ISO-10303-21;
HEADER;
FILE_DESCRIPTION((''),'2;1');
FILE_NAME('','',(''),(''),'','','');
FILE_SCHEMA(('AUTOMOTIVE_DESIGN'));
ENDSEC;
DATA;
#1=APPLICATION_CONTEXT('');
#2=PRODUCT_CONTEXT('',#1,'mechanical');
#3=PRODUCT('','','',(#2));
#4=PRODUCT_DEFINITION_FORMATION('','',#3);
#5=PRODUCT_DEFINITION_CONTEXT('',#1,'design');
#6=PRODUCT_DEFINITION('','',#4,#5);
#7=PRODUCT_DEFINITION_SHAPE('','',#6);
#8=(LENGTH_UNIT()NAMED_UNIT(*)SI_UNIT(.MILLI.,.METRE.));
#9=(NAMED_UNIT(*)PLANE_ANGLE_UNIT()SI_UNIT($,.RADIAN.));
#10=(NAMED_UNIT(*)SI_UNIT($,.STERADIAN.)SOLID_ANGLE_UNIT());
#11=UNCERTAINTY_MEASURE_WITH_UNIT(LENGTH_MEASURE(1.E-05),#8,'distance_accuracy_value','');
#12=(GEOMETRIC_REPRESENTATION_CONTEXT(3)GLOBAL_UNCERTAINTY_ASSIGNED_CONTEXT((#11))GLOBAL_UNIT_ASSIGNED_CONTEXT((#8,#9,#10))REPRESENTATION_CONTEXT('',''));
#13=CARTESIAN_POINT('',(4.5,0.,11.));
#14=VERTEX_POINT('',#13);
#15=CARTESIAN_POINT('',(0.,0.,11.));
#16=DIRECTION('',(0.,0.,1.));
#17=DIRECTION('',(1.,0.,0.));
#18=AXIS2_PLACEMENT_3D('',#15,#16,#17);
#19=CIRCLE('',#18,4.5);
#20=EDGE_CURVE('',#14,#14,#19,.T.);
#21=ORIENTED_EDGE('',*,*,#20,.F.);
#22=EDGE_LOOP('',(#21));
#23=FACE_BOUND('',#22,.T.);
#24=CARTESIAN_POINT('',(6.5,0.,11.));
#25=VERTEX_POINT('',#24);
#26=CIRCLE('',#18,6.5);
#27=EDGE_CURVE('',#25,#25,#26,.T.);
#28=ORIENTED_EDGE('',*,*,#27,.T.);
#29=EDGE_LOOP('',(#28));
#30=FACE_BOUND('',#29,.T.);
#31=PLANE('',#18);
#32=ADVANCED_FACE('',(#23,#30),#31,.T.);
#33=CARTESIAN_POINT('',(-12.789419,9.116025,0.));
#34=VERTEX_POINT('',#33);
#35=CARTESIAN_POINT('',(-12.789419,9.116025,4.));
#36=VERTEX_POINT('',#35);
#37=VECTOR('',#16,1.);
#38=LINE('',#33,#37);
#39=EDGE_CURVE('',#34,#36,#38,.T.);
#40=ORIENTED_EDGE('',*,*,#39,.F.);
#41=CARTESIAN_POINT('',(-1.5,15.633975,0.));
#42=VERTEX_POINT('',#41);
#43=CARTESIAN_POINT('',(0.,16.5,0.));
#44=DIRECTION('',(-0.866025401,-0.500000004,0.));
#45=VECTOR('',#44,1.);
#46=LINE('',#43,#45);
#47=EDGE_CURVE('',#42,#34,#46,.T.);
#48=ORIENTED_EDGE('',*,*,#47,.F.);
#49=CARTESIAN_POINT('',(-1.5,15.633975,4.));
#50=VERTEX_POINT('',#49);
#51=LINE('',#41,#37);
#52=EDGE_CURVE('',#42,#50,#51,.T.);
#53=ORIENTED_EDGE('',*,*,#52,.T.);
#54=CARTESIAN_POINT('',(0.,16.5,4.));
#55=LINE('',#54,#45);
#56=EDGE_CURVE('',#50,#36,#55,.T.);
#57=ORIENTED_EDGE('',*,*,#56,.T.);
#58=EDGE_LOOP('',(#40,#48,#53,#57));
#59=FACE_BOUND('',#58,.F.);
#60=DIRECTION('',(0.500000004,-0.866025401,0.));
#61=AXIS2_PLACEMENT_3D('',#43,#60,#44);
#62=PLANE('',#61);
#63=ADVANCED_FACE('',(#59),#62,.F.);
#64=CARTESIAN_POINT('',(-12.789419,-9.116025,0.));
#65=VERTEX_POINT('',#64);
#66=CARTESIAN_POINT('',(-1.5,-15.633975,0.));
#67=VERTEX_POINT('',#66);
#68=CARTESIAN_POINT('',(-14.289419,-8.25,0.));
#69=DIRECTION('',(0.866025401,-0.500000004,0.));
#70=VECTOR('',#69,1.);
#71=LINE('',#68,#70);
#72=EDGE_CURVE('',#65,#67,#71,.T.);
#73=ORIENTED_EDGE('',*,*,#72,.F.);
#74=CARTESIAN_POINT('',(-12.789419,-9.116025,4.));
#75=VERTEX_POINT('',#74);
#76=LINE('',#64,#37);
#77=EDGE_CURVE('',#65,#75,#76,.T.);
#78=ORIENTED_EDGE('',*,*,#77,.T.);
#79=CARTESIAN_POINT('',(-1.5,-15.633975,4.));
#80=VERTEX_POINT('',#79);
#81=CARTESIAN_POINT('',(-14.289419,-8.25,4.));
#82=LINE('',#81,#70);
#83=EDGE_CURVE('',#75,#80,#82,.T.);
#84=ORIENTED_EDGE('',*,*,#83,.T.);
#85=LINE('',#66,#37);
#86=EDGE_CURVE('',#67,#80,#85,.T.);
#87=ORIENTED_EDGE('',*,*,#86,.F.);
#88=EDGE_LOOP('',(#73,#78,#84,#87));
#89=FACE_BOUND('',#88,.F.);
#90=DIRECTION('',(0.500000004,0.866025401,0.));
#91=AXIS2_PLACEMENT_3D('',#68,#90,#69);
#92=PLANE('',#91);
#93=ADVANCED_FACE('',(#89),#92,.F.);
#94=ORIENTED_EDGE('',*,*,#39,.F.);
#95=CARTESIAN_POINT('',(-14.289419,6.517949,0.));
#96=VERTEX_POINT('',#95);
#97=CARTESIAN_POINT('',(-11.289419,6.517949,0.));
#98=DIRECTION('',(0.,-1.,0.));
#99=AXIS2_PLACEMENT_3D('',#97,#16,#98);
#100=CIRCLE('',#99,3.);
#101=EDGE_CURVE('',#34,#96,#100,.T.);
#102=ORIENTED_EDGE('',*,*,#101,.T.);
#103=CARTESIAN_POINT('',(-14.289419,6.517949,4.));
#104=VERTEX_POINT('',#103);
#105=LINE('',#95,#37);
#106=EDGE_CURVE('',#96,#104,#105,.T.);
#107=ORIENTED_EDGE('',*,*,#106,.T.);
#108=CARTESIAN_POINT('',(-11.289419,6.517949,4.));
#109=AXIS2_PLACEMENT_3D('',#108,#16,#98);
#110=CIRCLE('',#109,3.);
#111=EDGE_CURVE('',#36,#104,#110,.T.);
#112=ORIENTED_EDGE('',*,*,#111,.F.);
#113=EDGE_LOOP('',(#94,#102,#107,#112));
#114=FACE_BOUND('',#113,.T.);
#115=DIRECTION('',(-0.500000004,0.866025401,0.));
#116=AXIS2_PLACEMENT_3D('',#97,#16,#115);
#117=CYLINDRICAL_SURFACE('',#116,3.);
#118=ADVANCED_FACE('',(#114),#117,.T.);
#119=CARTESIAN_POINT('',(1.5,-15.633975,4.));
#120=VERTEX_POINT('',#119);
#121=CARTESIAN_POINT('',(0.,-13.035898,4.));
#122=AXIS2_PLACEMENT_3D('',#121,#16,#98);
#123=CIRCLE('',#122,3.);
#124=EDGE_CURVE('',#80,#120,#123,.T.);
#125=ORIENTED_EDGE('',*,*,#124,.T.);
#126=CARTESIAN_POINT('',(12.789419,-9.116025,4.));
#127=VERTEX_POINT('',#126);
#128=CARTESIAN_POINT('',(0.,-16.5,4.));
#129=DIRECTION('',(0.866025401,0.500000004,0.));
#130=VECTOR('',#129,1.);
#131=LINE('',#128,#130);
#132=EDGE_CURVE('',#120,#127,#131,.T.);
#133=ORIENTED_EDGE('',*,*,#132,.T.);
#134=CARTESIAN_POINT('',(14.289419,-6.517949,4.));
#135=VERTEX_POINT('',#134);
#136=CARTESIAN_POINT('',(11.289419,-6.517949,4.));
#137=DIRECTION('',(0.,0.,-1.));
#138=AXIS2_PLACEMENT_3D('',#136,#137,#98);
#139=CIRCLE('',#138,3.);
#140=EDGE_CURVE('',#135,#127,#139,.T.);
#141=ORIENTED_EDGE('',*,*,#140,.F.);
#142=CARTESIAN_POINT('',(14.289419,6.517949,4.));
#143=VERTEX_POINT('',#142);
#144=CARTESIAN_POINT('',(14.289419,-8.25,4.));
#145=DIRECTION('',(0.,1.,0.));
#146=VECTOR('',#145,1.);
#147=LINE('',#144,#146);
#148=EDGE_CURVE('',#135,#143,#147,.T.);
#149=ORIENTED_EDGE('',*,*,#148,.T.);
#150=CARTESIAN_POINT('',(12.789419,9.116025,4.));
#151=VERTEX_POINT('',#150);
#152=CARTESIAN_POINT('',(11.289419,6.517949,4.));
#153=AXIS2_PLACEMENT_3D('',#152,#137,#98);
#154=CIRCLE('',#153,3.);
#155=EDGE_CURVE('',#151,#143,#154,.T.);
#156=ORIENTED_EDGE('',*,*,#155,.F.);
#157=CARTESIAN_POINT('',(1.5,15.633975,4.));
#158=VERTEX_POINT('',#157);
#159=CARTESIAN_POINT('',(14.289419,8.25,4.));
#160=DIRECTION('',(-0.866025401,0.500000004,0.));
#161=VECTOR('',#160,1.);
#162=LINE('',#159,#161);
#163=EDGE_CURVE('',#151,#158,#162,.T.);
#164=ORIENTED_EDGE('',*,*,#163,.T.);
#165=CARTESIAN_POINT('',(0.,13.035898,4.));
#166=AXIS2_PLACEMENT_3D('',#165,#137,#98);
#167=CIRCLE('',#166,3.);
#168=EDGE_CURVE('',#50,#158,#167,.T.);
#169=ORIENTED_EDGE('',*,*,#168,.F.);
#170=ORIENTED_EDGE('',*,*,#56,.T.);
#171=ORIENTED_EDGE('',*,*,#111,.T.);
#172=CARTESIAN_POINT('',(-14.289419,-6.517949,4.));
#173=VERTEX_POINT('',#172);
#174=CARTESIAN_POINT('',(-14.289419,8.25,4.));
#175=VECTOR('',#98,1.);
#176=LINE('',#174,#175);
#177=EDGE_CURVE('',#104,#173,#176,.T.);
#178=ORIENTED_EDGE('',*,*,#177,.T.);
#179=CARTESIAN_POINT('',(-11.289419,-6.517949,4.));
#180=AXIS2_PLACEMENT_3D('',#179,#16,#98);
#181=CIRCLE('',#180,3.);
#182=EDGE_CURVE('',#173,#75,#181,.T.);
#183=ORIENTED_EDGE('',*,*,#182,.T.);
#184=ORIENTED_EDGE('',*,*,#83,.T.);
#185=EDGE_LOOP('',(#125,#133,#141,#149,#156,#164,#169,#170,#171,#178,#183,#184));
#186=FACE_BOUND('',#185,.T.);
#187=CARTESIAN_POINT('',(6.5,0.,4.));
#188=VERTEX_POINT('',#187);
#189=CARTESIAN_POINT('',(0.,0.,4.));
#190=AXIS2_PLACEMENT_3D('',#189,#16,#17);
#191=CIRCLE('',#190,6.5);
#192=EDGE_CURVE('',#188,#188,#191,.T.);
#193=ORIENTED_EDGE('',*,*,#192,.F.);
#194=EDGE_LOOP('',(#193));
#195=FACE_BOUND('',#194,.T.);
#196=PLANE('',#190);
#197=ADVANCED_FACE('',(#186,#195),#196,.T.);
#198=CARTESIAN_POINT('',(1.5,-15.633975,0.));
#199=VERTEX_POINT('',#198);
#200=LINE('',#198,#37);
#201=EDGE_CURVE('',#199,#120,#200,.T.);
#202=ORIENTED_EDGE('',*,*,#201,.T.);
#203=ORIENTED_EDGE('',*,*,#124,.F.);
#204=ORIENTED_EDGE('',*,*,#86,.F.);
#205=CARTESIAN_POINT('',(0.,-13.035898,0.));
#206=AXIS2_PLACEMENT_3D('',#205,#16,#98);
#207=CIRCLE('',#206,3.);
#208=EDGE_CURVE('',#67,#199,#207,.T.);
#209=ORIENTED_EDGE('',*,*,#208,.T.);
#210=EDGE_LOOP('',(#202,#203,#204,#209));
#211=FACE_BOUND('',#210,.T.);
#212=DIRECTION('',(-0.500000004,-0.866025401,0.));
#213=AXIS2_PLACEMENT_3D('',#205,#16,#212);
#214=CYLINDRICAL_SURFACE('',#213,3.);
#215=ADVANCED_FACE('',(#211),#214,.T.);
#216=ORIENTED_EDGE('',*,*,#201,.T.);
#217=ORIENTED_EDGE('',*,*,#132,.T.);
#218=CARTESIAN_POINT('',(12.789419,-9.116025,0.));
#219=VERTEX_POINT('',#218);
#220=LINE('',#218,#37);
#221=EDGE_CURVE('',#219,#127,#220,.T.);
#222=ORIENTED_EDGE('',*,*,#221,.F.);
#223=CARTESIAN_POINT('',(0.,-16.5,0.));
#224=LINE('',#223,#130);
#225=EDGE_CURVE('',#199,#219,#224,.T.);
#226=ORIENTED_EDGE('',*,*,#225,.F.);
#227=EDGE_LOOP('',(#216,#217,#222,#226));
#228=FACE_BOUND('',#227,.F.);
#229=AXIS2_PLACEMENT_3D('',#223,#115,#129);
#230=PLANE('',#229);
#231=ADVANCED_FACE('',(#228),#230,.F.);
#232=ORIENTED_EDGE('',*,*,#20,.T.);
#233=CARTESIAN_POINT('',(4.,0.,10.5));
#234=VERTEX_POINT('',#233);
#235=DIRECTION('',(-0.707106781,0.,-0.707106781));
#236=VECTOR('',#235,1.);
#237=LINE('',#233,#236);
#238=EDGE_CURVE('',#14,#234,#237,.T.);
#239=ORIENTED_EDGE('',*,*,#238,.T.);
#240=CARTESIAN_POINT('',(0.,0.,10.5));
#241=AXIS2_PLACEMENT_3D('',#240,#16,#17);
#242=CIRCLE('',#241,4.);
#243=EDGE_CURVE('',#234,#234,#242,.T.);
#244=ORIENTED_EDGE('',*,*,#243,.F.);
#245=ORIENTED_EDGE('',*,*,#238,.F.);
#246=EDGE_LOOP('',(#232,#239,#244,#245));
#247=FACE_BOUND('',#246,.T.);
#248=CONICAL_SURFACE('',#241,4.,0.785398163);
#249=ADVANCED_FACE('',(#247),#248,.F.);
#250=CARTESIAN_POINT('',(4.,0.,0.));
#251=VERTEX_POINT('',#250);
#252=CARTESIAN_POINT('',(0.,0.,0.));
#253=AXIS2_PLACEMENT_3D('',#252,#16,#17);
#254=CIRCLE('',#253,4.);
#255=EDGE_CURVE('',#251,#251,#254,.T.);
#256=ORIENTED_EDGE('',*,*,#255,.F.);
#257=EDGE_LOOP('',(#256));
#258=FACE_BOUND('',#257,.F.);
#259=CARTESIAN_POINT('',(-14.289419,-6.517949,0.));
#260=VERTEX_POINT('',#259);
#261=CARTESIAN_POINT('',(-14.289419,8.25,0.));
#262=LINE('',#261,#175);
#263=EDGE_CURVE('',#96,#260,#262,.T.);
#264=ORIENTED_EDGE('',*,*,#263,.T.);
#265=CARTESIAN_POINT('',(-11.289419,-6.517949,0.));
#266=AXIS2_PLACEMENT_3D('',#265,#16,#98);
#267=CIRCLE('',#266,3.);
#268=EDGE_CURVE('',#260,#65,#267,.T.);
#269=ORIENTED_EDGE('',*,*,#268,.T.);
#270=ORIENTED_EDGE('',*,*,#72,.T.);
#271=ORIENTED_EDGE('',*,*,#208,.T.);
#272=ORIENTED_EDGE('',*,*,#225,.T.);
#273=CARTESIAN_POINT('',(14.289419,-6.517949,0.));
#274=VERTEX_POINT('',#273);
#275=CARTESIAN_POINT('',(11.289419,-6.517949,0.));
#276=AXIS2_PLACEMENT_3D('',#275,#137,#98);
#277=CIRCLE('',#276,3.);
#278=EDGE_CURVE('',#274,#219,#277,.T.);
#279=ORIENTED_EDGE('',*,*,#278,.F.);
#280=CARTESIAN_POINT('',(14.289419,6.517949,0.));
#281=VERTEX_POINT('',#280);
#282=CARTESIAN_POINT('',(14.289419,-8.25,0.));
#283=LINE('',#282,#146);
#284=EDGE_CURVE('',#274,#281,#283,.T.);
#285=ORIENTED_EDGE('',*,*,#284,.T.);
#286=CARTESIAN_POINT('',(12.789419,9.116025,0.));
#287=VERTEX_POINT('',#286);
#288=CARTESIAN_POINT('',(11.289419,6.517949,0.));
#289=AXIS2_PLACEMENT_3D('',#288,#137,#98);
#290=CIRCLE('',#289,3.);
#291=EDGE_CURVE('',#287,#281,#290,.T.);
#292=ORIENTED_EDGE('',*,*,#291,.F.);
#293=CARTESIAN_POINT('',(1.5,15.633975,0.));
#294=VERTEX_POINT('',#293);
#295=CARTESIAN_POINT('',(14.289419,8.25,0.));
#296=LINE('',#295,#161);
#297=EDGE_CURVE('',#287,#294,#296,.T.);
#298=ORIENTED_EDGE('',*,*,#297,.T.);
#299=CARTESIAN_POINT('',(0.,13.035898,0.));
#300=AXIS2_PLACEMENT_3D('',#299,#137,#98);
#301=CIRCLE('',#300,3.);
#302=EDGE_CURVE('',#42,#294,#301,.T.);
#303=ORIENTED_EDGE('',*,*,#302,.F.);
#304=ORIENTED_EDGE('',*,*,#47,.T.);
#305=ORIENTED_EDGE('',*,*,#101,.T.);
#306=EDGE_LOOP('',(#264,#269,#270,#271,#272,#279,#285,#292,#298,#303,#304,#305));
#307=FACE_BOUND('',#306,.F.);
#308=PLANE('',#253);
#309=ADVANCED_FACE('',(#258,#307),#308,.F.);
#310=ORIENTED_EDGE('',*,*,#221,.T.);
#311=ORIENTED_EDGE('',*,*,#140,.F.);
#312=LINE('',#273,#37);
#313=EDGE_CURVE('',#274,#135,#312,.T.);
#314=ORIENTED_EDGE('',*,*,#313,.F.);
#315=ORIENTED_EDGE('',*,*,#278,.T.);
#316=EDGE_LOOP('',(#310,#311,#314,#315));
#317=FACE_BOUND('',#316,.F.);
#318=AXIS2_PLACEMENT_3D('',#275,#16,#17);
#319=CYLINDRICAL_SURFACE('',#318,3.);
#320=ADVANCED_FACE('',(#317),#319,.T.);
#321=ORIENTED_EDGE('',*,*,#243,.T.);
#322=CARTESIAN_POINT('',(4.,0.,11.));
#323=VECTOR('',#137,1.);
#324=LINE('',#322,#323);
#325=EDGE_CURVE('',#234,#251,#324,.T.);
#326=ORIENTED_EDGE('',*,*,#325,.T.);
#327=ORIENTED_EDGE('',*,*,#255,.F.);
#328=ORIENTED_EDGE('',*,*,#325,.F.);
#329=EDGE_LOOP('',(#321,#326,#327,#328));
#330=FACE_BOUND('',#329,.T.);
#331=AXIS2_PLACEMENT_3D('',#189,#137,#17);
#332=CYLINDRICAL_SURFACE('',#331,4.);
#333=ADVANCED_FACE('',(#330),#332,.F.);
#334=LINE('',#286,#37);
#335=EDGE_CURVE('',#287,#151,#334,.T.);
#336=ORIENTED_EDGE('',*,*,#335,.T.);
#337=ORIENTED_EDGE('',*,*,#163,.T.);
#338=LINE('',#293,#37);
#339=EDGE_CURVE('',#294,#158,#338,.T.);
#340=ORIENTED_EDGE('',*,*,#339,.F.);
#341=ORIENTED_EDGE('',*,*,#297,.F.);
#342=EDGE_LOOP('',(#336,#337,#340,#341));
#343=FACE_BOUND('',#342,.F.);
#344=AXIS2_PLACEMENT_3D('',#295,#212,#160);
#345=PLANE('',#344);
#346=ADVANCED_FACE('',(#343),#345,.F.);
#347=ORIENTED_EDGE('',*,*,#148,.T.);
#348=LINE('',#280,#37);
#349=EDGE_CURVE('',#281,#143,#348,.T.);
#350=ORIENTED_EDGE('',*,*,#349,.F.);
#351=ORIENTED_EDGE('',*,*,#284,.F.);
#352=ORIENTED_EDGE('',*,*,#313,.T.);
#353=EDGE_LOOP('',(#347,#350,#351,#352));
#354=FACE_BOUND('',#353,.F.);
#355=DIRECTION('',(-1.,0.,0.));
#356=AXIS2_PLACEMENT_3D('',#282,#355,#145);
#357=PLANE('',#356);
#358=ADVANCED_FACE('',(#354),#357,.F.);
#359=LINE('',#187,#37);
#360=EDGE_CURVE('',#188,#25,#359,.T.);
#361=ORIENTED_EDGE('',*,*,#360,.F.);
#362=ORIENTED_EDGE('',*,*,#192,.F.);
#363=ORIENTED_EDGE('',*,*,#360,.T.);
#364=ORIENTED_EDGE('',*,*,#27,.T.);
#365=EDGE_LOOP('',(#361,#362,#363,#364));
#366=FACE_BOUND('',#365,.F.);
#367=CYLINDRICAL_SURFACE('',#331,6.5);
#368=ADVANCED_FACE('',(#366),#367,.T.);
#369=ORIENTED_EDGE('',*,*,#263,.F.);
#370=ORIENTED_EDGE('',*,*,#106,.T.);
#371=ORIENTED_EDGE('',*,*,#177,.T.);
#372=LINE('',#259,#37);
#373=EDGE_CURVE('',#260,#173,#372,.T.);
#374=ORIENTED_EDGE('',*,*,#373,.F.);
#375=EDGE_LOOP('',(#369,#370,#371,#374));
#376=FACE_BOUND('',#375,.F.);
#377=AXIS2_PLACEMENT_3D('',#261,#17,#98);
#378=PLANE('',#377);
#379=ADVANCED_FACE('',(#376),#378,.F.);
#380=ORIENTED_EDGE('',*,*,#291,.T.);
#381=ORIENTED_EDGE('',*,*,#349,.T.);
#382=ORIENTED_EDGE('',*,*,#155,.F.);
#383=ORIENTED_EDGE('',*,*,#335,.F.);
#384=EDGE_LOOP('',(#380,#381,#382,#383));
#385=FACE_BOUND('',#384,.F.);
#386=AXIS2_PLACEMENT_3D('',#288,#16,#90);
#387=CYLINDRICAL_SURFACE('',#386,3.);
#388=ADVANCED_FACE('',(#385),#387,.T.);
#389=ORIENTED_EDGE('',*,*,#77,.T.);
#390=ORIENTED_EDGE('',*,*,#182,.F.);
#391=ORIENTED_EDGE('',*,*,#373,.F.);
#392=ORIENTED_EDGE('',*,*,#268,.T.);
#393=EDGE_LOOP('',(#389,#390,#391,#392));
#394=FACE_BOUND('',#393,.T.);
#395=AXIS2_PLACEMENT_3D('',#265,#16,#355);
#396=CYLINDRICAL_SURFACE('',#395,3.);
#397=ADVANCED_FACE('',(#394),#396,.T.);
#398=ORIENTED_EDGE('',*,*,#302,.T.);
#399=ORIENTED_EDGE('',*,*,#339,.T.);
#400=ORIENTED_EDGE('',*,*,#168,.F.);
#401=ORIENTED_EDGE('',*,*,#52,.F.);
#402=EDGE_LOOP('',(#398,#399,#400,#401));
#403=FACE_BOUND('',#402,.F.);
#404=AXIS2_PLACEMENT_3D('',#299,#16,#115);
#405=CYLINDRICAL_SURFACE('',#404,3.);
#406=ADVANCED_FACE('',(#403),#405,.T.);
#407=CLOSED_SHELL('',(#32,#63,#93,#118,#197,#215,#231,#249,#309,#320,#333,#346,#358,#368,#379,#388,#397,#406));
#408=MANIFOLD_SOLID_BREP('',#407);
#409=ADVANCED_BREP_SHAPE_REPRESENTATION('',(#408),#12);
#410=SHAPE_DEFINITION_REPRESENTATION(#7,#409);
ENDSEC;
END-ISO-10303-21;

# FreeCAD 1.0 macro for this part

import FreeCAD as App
import Part
import Sketcher

V = App.Vector
Q = App.Units.Quantity


def edges_at(feature, points):
    """Names of the edges that pass closest to the given points."""
    edges = feature.Shape.Edges
    near = lambda p: min(range(len(edges)), key=lambda i: edges[i].distToShape(Part.Vertex(*p))[0])
    return sorted({f"Edge{near(p) + 1}" for p in points})


def add_polygon(sketch, points):
    """Adds a closed chain of lines whose ends are joined by coincident constraints."""
    first, n = sketch.GeometryCount, len(points)
    for a, b in zip(points, points[1:] + points[:1]):
        sketch.addGeometry(Part.LineSegment(App.Vector(*a, 0), App.Vector(*b, 0)), False)
    for i in range(n):
        sketch.addConstraint(Sketcher.Constraint("Coincident", first + i, 2, first + (i + 1) % n, 1))

doc = App.newDocument("Part")
body = doc.addObject("PartDesign::Body", "Body")

# Sketch on XY plane
sketch1 = doc.addObject("Sketcher::SketchObject", "Sketch")
body.addObject(sketch1)
sketch1.AttachmentSupport = (doc.XY_Plane, [""])
sketch1.MapMode = "FlatFace"
add_polygon(sketch1, [(0, 16.5), (-14.3, 8.2), (-14.3, -8.2), (0, -16.5), (14.3, -8.2), (14.3, 8.2)])  # lines 0-5
sketch1.addGeometry(Part.Circle(V(0, 0, 0), V(0, 0, 1), 4), False)  # 6
sketch1.addConstraint([
    Sketcher.Constraint("Vertical", 1),
    Sketcher.Constraint("Vertical", 4),
    Sketcher.Constraint("Coincident", 6, 3, -1, 1),
    Sketcher.Constraint("Symmetric", 0, 2, 3, 2, -1, 1),
    Sketcher.Constraint("Symmetric", 2, 2, 5, 2, -1, 1),
    Sketcher.Constraint("PointOnObject", 2, 2, -2),
    Sketcher.Constraint("Parallel", 2, 5),
    Sketcher.Constraint("Horizontal", 1, 2, 3, 2),
    Sketcher.Constraint("Diameter", 6, Q("8 mm")),
    Sketcher.Constraint("Angle", 0, Q("-150 deg")),
    Sketcher.Constraint("DistanceY", 1, 2, 1, 1, Q("16.5 mm")),
    Sketcher.Constraint("Distance", 0, Q("16.5 mm")),
])
pad1 = doc.addObject("PartDesign::Pad", "Pad")
body.addObject(pad1)
pad1.Profile = sketch1
pad1.Length = 4

# Sketch on XY plane
sketch2 = doc.addObject("Sketcher::SketchObject", "Sketch001")
body.addObject(sketch2)
sketch2.AttachmentSupport = (doc.XY_Plane, [""])
sketch2.MapMode = "FlatFace"
sketch2.AttachmentOffset = App.Placement(V(0, 0, 4), App.Rotation())
sketch2.addGeometry([
    Part.Circle(V(0, 0, 0), V(0, 0, 1), 6.5),
    Part.Circle(V(0, 0, 0), V(0, 0, 1), 4),
], False)
sketch2.addConstraint([
    Sketcher.Constraint("Coincident", 0, 3, -1, 1),
    Sketcher.Constraint("Coincident", 1, 3, -1, 1),
    Sketcher.Constraint("Diameter", 0, Q("13 mm")),
    Sketcher.Constraint("Diameter", 1, Q("8 mm")),
])
pad2 = doc.addObject("PartDesign::Pad", "Pad001")
body.addObject(pad2)
pad2.Profile = sketch2
pad2.Length = 7
doc.recompute()

chamfer = doc.addObject("PartDesign::Chamfer", "Chamfer")
body.addObject(chamfer)
chamfer.Base = (pad2, edges_at(pad2, [(-4, 0, 11)]))
chamfer.Size = 0.5
doc.recompute()

fillet = doc.addObject("PartDesign::Fillet", "Fillet")
body.addObject(fillet)
fillet.Base = (chamfer, edges_at(chamfer, [
    (0, -16.5, 2),
    (14.289, -8.25, 2),
    (14.289, 8.25, 2),
    (-14.289, -8.25, 2),
    (-14.289, 8.25, 2),
    (0, 16.5, 2),
]))
fillet.Radius = 3

doc.recompute()
